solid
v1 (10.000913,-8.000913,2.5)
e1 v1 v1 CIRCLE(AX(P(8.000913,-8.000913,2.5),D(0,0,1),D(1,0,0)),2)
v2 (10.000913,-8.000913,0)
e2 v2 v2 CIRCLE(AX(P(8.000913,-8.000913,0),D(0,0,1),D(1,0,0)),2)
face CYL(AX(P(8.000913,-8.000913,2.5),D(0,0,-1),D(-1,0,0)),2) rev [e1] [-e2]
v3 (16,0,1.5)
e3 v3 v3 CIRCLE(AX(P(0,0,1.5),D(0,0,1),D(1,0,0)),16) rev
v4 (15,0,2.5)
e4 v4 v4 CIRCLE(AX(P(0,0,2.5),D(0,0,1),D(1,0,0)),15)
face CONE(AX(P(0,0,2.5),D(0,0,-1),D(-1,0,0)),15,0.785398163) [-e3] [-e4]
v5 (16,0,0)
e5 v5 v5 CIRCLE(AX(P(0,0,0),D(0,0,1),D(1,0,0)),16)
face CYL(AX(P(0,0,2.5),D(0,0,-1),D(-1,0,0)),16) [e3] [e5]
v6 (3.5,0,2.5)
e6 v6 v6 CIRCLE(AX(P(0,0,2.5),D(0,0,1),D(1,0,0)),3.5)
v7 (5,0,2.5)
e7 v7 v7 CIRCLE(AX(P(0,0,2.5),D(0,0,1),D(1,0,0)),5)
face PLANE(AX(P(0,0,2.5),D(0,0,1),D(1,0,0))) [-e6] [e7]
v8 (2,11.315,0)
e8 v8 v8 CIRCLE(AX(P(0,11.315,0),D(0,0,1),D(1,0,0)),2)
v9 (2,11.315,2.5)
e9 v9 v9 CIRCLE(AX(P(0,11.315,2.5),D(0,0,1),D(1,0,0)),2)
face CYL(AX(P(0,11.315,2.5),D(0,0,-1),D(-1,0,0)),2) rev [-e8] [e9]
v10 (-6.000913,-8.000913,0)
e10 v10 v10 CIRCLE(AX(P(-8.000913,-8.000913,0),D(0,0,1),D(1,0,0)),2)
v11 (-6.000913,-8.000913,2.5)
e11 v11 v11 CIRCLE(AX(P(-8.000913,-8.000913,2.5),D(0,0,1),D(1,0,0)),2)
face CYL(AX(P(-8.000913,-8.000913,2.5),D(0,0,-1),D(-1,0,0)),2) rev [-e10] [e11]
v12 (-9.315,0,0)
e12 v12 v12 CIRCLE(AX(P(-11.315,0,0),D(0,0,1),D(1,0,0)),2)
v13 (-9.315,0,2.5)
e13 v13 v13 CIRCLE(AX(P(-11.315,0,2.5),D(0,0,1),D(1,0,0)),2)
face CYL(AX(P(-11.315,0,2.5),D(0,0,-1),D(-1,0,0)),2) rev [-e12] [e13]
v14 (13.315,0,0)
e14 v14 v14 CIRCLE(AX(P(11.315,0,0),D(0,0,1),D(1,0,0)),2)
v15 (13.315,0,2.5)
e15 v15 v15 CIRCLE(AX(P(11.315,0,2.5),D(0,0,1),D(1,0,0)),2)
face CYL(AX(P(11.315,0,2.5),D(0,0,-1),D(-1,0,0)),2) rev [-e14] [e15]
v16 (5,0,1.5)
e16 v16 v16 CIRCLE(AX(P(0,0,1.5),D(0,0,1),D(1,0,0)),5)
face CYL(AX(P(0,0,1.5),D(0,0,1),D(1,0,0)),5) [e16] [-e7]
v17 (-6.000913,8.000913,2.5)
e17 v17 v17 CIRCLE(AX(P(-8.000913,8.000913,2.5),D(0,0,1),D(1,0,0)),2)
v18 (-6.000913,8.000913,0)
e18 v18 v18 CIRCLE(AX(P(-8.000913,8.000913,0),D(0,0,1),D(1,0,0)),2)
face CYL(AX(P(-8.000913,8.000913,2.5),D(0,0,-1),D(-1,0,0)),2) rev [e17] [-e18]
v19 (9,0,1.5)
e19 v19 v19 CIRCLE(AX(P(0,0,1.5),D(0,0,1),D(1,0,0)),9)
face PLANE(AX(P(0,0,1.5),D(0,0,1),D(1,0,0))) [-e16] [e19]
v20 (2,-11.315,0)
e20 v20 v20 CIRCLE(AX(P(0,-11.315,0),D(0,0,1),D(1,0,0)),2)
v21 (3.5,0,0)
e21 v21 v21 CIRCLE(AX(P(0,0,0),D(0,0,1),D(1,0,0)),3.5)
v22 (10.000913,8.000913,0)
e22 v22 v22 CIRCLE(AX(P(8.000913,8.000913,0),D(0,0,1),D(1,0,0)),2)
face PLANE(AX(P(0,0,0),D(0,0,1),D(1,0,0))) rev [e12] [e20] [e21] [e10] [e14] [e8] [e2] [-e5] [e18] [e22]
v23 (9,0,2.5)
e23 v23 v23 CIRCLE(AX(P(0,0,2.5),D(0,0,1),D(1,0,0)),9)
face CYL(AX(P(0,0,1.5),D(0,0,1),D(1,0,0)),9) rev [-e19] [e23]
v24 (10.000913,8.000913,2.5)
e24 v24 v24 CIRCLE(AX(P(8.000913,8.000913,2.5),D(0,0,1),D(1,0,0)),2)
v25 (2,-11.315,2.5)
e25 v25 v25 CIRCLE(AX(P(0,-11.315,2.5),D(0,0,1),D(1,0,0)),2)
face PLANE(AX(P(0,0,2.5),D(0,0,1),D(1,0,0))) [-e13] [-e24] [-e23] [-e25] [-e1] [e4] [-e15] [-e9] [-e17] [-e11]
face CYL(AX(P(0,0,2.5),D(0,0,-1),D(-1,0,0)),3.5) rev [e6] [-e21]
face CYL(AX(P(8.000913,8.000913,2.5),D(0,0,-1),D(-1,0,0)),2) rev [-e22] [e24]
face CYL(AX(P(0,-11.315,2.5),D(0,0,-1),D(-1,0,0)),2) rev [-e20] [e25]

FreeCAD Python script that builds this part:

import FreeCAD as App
import Part
import Sketcher


def edges_at(feature, points):
    """Names of the edges that pass closest to the given points."""
    edges = feature.Shape.Edges
    near = lambda p: min(range(len(edges)), key=lambda i: edges[i].distToShape(Part.Vertex(*p))[0])
    return sorted({f"Edge{near(p) + 1}" for p in points})

doc = App.newDocument("Part")
body = doc.addObject("PartDesign::Body", "Body")

# Sketch on XY plane
sketch1 = body.newObject("Sketcher::SketchObject", "Sketch")
sketch1.AttachmentSupport = (doc.getObject("XY_Plane"), [""])
sketch1.MapMode = "FlatFace"
sketch1.addGeometry(Part.Circle(App.Vector(0, 0, 0), App.Vector(0, 0, 1), 16), False)
sketch1.addGeometry(Part.Circle(App.Vector(-8, -8, 0), App.Vector(0, 0, 1), 2), False)
sketch1.addGeometry(Part.Circle(App.Vector(0, -11.3, 0), App.Vector(0, 0, 1), 2), False)
sketch1.addGeometry(Part.Circle(App.Vector(8, -8, 0), App.Vector(0, 0, 1), 2), False)
sketch1.addGeometry(Part.Circle(App.Vector(-11.3, 0, 0), App.Vector(0, 0, 1), 2), False)
sketch1.addGeometry(Part.Circle(App.Vector(0, 0, 0), App.Vector(0, 0, 1), 3.5), False)
sketch1.addGeometry(Part.Circle(App.Vector(-8, 8, 0), App.Vector(0, 0, 1), 2), False)
sketch1.addGeometry(Part.Circle(App.Vector(11.3, 0, 0), App.Vector(0, 0, 1), 2), False)
sketch1.addGeometry(Part.Circle(App.Vector(0, 11.3, 0), App.Vector(0, 0, 1), 2), False)
sketch1.addGeometry(Part.Circle(App.Vector(8, 8, 0), App.Vector(0, 0, 1), 2), False)
sketch1.addConstraint(Sketcher.Constraint("Coincident", 0, 3, -1, 1))
sketch1.addConstraint(Sketcher.Constraint("Coincident", 5, 3, -1, 1))
sketch1.addConstraint(Sketcher.Constraint("Equal", 1, 2))
sketch1.addConstraint(Sketcher.Constraint("Equal", 2, 3))
sketch1.addConstraint(Sketcher.Constraint("Equal", 3, 4))
sketch1.addConstraint(Sketcher.Constraint("Equal", 4, 6))
sketch1.addConstraint(Sketcher.Constraint("Equal", 6, 7))
sketch1.addConstraint(Sketcher.Constraint("Equal", 7, 8))
sketch1.addConstraint(Sketcher.Constraint("Equal", 8, 9))
sketch1.addConstraint(Sketcher.Constraint("Symmetric", 3, 3, 6, 3, -1, 1))
sketch1.addConstraint(Sketcher.Constraint("Symmetric", 4, 3, 7, 3, -1, 1))
sketch1.addConstraint(Sketcher.Constraint("Symmetric", 2, 3, 8, 3, -1, 1))
sketch1.addConstraint(Sketcher.Constraint("Symmetric", 1, 3, 9, 3, -1, 1))
sketch1.addConstraint(Sketcher.Constraint("Symmetric", 1, 3, 3, 3, -2))
sketch1.addConstraint(Sketcher.Constraint("PointOnObject", 2, 3, -2))
sketch1.addConstraint(Sketcher.Constraint("PointOnObject", 4, 3, -1))
sketch1.addConstraint(Sketcher.Constraint("Diameter", 0, 32.0))
sketch1.addConstraint(Sketcher.Constraint("Diameter", 1, 4.0))
sketch1.addConstraint(Sketcher.Constraint("Diameter", 5, 7.0))
sketch1.addConstraint(Sketcher.Constraint("DistanceY", 2, 3, -1, 1, 11.315))
sketch1.addConstraint(Sketcher.Constraint("DistanceX", 4, 3, -1, 1, 11.315))
sketch1.addConstraint(Sketcher.Constraint("DistanceX", 1, 3, -1, 1, 8.000913))
sketch1.addConstraint(Sketcher.Constraint("DistanceY", 1, 3, -1, 1, 8.000913))
pad1 = body.newObject("PartDesign::Pad", "Pad")
pad1.Profile = sketch1
pad1.Length = 2.5

# Sketch on XY plane
sketch2 = body.newObject("Sketcher::SketchObject", "Sketch001")
sketch2.AttachmentSupport = (doc.getObject("XY_Plane"), [""])
sketch2.MapMode = "FlatFace"
sketch2.AttachmentOffset = App.Placement(App.Vector(0, 0, 2.5), App.Rotation())
sketch2.addGeometry(Part.Circle(App.Vector(0, 0, 0), App.Vector(0, 0, 1), 9), False)
sketch2.addGeometry(Part.Circle(App.Vector(0, 0, 0), App.Vector(0, 0, 1), 5), False)
sketch2.addConstraint(Sketcher.Constraint("Coincident", 0, 3, -1, 1))
sketch2.addConstraint(Sketcher.Constraint("Coincident", 1, 3, -1, 1))
sketch2.addConstraint(Sketcher.Constraint("Diameter", 0, 18.0))
sketch2.addConstraint(Sketcher.Constraint("Diameter", 1, 10.0))
pocket1 = body.newObject("PartDesign::Pocket", "Pocket")
pocket1.Profile = sketch2
pocket1.Length = 1
doc.recompute()

chamfer = body.newObject("PartDesign::Chamfer", "Chamfer")
chamfer.Base = (pocket1, edges_at(pocket1, [(-16, 0, 2.5)]))
chamfer.Size = 1

doc.recompute()
